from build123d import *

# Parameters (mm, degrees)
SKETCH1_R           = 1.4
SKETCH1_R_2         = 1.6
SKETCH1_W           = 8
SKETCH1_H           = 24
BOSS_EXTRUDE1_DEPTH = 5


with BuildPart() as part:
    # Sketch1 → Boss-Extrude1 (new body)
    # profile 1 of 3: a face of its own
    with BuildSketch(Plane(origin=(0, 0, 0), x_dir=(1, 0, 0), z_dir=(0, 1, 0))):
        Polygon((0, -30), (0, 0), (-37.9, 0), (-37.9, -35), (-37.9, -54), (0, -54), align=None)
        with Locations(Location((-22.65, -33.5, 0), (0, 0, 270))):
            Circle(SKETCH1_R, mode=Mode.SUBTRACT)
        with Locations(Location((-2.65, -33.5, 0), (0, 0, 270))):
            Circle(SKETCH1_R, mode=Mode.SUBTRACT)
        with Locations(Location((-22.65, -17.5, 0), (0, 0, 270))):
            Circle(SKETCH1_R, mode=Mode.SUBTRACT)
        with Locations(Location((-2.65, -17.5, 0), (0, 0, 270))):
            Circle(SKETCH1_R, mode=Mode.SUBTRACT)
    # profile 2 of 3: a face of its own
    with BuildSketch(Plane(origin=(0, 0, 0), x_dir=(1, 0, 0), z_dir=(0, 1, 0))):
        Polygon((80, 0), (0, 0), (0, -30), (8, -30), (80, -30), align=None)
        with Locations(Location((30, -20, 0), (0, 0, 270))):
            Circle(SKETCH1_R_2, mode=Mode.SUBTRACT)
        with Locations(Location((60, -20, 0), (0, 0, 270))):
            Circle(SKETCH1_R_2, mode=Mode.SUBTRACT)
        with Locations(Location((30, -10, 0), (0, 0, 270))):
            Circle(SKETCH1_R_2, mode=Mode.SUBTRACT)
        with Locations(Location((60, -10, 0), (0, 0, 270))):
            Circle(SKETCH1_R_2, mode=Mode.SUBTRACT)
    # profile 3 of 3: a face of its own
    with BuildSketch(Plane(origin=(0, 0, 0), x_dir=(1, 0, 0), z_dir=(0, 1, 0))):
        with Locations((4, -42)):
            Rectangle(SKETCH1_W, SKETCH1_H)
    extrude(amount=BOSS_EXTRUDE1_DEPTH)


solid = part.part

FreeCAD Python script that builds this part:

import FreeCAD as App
import Part
import Sketcher
from FreeCAD import Vector

doc = App.newDocument("Part")
params = doc.addObject("Spreadsheet::Sheet", "Params")
for row, (alias, value) in enumerate([
    ("sketch1_diameter", "2.8 mm"),
    ("sketch1_diameter2", "3.2 mm"),
    ("sketch1_width", "72 mm"),
    ("sketch1_height", "54 mm"),
    ("sketch1_height2", "24 mm"),
    ("pad1_length", "5 mm"),
], start=1):
    params.set(f"A{row}", alias)
    params.set(f"B{row}", "=" + value)
    params.setAlias(f"B{row}", alias)

body = doc.addObject("PartDesign::Body", "Body")

# Sketch on XZ plane
sketch1 = body.newObject("Sketcher::SketchObject", "Sketch")
sketch1.AttachmentSupport = (doc.getObject("XZ_Plane"), [""])
sketch1.MapMode = "FlatFace"
sketch1.addGeometry(Part.LineSegment(Vector(-37.9, 0, 0), Vector(-37.9, 54, 0)), False)
sketch1.addGeometry(Part.LineSegment(Vector(-37.9, 54, 0), Vector(8, 54, 0)), False)
sketch1.addGeometry(Part.LineSegment(Vector(8, 54, 0), Vector(8, 30, 0)), False)
sketch1.addGeometry(Part.LineSegment(Vector(8, 30, 0), Vector(80, 30, 0)), False)
sketch1.addGeometry(Part.LineSegment(Vector(80, 30, 0), Vector(80, 0, 0)), False)
sketch1.addGeometry(Part.LineSegment(Vector(80, 0, 0), Vector(-37.9, 0, 0)), False)
sketch1.addGeometry(Part.Circle(Vector(-22.6, 33.5, 0), Vector(0, 0, 1), 1.4), False)
sketch1.addGeometry(Part.Circle(Vector(-2.6, 33.5, 0), Vector(0, 0, 1), 1.4), False)
sketch1.addGeometry(Part.Circle(Vector(-22.6, 17.5, 0), Vector(0, 0, 1), 1.4), False)
sketch1.addGeometry(Part.Circle(Vector(-2.6, 17.5, 0), Vector(0, 0, 1), 1.4), False)
sketch1.addGeometry(Part.Circle(Vector(60, 10, 0), Vector(0, 0, 1), 1.6), False)
sketch1.addGeometry(Part.Circle(Vector(30, 10, 0), Vector(0, 0, 1), 1.6), False)
sketch1.addGeometry(Part.Circle(Vector(30, 20, 0), Vector(0, 0, 1), 1.6), False)
sketch1.addGeometry(Part.Circle(Vector(60, 20, 0), Vector(0, 0, 1), 1.6), False)
sketch1.addConstraint(Sketcher.Constraint("Coincident", 0, 2, 1, 1))
sketch1.addConstraint(Sketcher.Constraint("Coincident", 1, 2, 2, 1))
sketch1.addConstraint(Sketcher.Constraint("Coincident", 2, 2, 3, 1))
sketch1.addConstraint(Sketcher.Constraint("Coincident", 3, 2, 4, 1))
sketch1.addConstraint(Sketcher.Constraint("Coincident", 4, 2, 5, 1))
sketch1.addConstraint(Sketcher.Constraint("Coincident", 5, 2, 0, 1))
sketch1.addConstraint(Sketcher.Constraint("Vertical", 0))
sketch1.addConstraint(Sketcher.Constraint("Horizontal", 1))
sketch1.addConstraint(Sketcher.Constraint("Vertical", 2))
sketch1.addConstraint(Sketcher.Constraint("Horizontal", 3))
sketch1.addConstraint(Sketcher.Constraint("Vertical", 4))
sketch1.addConstraint(Sketcher.Constraint("Horizontal", 5))
sketch1.addConstraint(Sketcher.Constraint("Equal", 6, 7))
sketch1.addConstraint(Sketcher.Constraint("Equal", 7, 8))
sketch1.addConstraint(Sketcher.Constraint("Equal", 8, 9))
sketch1.addConstraint(Sketcher.Constraint("Equal", 10, 11))
sketch1.addConstraint(Sketcher.Constraint("Equal", 11, 12))
sketch1.addConstraint(Sketcher.Constraint("Equal", 12, 13))
sketch1.addConstraint(Sketcher.Constraint("PointOnObject", 4, 2, -1))
sketch1.addConstraint(Sketcher.Constraint("Horizontal", 6, 3, 7, 3))
sketch1.addConstraint(Sketcher.Constraint("Horizontal", 8, 3, 9, 3))
sketch1.addConstraint(Sketcher.Constraint("Horizontal", 10, 3, 11, 3))
sketch1.addConstraint(Sketcher.Constraint("Horizontal", 12, 3, 13, 3))
sketch1.addConstraint(Sketcher.Constraint("Vertical", 6, 3, 8, 3))
sketch1.addConstraint(Sketcher.Constraint("Vertical", 7, 3, 9, 3))
sketch1.addConstraint(Sketcher.Constraint("Vertical", 11, 3, 12, 3))
sketch1.addConstraint(Sketcher.Constraint("Vertical", 10, 3, 13, 3))
sketch1.addConstraint(Sketcher.Constraint("Diameter", 6, 2.8))
sketch1.addConstraint(Sketcher.Constraint("Diameter", 10, 3.2))
sketch1.addConstraint(Sketcher.Constraint("DistanceX", 3, 1, 3, 2, 72.0))
sketch1.addConstraint(Sketcher.Constraint("DistanceY", 0, 1, 0, 2, 54.0))
sketch1.addConstraint(Sketcher.Constraint("DistanceY", 2, 2, 2, 1, 24.0))
sketch1.addConstraint(Sketcher.Constraint("DistanceX", 1, 1, 1, 2, 45.9))
sketch1.addConstraint(Sketcher.Constraint("DistanceX", -1, 1, 10, 3, 60.0))
sketch1.addConstraint(Sketcher.Constraint("DistanceY", -1, 1, 10, 3, 10.0))
sketch1.addConstraint(Sketcher.Constraint("DistanceX", -1, 1, 11, 3, 30.0))
sketch1.addConstraint(Sketcher.Constraint("DistanceY", -1, 1, 12, 3, 20.0))
sketch1.addConstraint(Sketcher.Constraint("DistanceX", -1, 1, 1, 2, 8.0))
sketch1.addConstraint(Sketcher.Constraint("DistanceX", 6, 3, 7, 3, 20.0))
sketch1.addConstraint(Sketcher.Constraint("DistanceY", 8, 3, 6, 3, 16.0))
sketch1.addConstraint(Sketcher.Constraint("DistanceY", -1, 1, 6, 3, 33.5))
sketch1.addConstraint(Sketcher.Constraint("DistanceX", 6, 3, -1, 1, 22.65))
sketch1.setExpression("Constraints[27]", "Params.sketch1_diameter")
sketch1.setExpression("Constraints[28]", "Params.sketch1_diameter2")
sketch1.setExpression("Constraints[29]", "Params.sketch1_width")
sketch1.setExpression("Constraints[30]", "Params.sketch1_height")
sketch1.setExpression("Constraints[31]", "Params.sketch1_height2")
pad1 = body.newObject("PartDesign::Pad", "Pad")
pad1.Profile = sketch1
pad1.setExpression("Length", "Params.pad1_length")
pad1.Reversed = True

doc.recompute()
